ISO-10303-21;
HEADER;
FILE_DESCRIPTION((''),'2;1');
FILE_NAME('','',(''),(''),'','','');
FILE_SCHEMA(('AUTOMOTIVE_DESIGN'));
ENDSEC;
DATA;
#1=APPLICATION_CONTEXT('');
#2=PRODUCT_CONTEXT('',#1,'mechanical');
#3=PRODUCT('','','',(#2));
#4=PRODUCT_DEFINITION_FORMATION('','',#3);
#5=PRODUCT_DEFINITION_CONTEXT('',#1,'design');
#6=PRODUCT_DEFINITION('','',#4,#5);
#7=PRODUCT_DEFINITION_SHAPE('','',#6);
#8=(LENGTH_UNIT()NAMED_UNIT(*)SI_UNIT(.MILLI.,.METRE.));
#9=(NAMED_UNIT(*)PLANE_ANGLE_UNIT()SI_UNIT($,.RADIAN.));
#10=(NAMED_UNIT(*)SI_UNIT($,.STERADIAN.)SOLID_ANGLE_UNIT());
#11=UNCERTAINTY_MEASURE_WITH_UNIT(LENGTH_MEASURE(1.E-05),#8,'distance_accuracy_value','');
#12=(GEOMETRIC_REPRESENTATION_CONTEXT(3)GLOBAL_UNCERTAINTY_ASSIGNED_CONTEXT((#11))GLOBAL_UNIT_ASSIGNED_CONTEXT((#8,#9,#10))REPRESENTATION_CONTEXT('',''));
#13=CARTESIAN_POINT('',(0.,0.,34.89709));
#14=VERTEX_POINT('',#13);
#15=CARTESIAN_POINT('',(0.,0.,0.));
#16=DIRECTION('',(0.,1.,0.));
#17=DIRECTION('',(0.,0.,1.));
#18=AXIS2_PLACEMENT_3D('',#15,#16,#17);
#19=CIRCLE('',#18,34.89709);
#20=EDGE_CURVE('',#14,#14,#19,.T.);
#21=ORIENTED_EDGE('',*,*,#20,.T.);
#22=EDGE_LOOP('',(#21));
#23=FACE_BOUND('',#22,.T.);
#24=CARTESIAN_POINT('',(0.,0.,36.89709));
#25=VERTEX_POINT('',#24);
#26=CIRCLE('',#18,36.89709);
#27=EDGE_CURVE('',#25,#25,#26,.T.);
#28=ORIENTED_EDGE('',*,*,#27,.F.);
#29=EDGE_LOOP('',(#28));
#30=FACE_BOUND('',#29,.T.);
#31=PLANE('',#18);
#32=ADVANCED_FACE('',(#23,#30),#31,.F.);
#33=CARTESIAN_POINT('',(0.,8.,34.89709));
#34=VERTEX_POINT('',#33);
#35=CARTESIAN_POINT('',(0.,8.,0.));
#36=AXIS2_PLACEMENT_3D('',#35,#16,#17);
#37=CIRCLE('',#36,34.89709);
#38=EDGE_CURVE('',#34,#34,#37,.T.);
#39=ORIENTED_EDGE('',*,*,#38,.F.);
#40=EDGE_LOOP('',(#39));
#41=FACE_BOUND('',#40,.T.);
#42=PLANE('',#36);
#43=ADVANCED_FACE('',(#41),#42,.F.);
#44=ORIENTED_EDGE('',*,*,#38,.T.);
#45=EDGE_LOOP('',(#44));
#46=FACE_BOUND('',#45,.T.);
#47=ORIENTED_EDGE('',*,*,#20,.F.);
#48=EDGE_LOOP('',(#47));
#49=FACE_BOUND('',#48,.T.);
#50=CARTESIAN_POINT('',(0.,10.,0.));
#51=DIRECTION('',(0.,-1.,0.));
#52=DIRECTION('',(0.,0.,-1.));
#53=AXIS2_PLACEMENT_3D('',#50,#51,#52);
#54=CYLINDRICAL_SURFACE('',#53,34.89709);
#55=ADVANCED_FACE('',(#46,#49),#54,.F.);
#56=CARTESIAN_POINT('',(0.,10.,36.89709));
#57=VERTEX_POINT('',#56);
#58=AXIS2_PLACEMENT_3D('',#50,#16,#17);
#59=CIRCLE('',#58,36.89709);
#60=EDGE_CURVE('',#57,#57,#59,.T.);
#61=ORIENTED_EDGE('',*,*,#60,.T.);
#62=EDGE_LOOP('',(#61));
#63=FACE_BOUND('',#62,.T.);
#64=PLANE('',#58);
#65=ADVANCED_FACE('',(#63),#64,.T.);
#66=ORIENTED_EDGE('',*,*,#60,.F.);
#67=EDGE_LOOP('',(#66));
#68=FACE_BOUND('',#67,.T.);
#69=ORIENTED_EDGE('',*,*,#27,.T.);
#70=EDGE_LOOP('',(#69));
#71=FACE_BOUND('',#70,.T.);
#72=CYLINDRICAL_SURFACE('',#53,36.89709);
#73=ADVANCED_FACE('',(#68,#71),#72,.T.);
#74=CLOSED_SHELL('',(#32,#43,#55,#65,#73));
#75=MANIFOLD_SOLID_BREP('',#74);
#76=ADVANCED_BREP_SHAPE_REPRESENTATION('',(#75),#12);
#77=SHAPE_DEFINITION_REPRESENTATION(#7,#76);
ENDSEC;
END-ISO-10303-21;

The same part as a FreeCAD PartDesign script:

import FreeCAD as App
import Part
import Sketcher
from FreeCAD import Vector


def faces_at(feature, points):
    """Names of the faces that lie closest to the given points."""
    faces = feature.Shape.Faces
    near = lambda p: min(range(len(faces)), key=lambda i: faces[i].distToShape(Part.Vertex(*p))[0])
    return sorted({f"Face{near(p) + 1}" for p in points})

doc = App.newDocument("Part")
body = doc.addObject("PartDesign::Body", "Body")

# Sketch on XZ plane
sketch1 = body.newObject("Sketcher::SketchObject", "Sketch")
sketch1.AttachmentSupport = (doc.getObject("XZ_Plane"), [""])
sketch1.MapMode = "FlatFace"
sketch1.addGeometry(Part.Circle(Vector(0, 0, 0), Vector(0, 0, 1), 37), False)
sketch1.addConstraint([
    Sketcher.Constraint("Coincident", 0, 3, -1, 1),
    Sketcher.Constraint("Diameter", 0, 73.794181),
])
pad1 = body.newObject("PartDesign::Pad", "Pad")
pad1.Profile = sketch1
pad1.Length = 10
pad1.Reversed = True
doc.recompute()

thickness = body.newObject("PartDesign::Thickness", "Thickness")
thickness.Base = (pad1, faces_at(pad1, [(0, 0, 0)]))
thickness.Value = 2
thickness.Reversed = True
thickness.Join = "Intersection"

doc.recompute()
